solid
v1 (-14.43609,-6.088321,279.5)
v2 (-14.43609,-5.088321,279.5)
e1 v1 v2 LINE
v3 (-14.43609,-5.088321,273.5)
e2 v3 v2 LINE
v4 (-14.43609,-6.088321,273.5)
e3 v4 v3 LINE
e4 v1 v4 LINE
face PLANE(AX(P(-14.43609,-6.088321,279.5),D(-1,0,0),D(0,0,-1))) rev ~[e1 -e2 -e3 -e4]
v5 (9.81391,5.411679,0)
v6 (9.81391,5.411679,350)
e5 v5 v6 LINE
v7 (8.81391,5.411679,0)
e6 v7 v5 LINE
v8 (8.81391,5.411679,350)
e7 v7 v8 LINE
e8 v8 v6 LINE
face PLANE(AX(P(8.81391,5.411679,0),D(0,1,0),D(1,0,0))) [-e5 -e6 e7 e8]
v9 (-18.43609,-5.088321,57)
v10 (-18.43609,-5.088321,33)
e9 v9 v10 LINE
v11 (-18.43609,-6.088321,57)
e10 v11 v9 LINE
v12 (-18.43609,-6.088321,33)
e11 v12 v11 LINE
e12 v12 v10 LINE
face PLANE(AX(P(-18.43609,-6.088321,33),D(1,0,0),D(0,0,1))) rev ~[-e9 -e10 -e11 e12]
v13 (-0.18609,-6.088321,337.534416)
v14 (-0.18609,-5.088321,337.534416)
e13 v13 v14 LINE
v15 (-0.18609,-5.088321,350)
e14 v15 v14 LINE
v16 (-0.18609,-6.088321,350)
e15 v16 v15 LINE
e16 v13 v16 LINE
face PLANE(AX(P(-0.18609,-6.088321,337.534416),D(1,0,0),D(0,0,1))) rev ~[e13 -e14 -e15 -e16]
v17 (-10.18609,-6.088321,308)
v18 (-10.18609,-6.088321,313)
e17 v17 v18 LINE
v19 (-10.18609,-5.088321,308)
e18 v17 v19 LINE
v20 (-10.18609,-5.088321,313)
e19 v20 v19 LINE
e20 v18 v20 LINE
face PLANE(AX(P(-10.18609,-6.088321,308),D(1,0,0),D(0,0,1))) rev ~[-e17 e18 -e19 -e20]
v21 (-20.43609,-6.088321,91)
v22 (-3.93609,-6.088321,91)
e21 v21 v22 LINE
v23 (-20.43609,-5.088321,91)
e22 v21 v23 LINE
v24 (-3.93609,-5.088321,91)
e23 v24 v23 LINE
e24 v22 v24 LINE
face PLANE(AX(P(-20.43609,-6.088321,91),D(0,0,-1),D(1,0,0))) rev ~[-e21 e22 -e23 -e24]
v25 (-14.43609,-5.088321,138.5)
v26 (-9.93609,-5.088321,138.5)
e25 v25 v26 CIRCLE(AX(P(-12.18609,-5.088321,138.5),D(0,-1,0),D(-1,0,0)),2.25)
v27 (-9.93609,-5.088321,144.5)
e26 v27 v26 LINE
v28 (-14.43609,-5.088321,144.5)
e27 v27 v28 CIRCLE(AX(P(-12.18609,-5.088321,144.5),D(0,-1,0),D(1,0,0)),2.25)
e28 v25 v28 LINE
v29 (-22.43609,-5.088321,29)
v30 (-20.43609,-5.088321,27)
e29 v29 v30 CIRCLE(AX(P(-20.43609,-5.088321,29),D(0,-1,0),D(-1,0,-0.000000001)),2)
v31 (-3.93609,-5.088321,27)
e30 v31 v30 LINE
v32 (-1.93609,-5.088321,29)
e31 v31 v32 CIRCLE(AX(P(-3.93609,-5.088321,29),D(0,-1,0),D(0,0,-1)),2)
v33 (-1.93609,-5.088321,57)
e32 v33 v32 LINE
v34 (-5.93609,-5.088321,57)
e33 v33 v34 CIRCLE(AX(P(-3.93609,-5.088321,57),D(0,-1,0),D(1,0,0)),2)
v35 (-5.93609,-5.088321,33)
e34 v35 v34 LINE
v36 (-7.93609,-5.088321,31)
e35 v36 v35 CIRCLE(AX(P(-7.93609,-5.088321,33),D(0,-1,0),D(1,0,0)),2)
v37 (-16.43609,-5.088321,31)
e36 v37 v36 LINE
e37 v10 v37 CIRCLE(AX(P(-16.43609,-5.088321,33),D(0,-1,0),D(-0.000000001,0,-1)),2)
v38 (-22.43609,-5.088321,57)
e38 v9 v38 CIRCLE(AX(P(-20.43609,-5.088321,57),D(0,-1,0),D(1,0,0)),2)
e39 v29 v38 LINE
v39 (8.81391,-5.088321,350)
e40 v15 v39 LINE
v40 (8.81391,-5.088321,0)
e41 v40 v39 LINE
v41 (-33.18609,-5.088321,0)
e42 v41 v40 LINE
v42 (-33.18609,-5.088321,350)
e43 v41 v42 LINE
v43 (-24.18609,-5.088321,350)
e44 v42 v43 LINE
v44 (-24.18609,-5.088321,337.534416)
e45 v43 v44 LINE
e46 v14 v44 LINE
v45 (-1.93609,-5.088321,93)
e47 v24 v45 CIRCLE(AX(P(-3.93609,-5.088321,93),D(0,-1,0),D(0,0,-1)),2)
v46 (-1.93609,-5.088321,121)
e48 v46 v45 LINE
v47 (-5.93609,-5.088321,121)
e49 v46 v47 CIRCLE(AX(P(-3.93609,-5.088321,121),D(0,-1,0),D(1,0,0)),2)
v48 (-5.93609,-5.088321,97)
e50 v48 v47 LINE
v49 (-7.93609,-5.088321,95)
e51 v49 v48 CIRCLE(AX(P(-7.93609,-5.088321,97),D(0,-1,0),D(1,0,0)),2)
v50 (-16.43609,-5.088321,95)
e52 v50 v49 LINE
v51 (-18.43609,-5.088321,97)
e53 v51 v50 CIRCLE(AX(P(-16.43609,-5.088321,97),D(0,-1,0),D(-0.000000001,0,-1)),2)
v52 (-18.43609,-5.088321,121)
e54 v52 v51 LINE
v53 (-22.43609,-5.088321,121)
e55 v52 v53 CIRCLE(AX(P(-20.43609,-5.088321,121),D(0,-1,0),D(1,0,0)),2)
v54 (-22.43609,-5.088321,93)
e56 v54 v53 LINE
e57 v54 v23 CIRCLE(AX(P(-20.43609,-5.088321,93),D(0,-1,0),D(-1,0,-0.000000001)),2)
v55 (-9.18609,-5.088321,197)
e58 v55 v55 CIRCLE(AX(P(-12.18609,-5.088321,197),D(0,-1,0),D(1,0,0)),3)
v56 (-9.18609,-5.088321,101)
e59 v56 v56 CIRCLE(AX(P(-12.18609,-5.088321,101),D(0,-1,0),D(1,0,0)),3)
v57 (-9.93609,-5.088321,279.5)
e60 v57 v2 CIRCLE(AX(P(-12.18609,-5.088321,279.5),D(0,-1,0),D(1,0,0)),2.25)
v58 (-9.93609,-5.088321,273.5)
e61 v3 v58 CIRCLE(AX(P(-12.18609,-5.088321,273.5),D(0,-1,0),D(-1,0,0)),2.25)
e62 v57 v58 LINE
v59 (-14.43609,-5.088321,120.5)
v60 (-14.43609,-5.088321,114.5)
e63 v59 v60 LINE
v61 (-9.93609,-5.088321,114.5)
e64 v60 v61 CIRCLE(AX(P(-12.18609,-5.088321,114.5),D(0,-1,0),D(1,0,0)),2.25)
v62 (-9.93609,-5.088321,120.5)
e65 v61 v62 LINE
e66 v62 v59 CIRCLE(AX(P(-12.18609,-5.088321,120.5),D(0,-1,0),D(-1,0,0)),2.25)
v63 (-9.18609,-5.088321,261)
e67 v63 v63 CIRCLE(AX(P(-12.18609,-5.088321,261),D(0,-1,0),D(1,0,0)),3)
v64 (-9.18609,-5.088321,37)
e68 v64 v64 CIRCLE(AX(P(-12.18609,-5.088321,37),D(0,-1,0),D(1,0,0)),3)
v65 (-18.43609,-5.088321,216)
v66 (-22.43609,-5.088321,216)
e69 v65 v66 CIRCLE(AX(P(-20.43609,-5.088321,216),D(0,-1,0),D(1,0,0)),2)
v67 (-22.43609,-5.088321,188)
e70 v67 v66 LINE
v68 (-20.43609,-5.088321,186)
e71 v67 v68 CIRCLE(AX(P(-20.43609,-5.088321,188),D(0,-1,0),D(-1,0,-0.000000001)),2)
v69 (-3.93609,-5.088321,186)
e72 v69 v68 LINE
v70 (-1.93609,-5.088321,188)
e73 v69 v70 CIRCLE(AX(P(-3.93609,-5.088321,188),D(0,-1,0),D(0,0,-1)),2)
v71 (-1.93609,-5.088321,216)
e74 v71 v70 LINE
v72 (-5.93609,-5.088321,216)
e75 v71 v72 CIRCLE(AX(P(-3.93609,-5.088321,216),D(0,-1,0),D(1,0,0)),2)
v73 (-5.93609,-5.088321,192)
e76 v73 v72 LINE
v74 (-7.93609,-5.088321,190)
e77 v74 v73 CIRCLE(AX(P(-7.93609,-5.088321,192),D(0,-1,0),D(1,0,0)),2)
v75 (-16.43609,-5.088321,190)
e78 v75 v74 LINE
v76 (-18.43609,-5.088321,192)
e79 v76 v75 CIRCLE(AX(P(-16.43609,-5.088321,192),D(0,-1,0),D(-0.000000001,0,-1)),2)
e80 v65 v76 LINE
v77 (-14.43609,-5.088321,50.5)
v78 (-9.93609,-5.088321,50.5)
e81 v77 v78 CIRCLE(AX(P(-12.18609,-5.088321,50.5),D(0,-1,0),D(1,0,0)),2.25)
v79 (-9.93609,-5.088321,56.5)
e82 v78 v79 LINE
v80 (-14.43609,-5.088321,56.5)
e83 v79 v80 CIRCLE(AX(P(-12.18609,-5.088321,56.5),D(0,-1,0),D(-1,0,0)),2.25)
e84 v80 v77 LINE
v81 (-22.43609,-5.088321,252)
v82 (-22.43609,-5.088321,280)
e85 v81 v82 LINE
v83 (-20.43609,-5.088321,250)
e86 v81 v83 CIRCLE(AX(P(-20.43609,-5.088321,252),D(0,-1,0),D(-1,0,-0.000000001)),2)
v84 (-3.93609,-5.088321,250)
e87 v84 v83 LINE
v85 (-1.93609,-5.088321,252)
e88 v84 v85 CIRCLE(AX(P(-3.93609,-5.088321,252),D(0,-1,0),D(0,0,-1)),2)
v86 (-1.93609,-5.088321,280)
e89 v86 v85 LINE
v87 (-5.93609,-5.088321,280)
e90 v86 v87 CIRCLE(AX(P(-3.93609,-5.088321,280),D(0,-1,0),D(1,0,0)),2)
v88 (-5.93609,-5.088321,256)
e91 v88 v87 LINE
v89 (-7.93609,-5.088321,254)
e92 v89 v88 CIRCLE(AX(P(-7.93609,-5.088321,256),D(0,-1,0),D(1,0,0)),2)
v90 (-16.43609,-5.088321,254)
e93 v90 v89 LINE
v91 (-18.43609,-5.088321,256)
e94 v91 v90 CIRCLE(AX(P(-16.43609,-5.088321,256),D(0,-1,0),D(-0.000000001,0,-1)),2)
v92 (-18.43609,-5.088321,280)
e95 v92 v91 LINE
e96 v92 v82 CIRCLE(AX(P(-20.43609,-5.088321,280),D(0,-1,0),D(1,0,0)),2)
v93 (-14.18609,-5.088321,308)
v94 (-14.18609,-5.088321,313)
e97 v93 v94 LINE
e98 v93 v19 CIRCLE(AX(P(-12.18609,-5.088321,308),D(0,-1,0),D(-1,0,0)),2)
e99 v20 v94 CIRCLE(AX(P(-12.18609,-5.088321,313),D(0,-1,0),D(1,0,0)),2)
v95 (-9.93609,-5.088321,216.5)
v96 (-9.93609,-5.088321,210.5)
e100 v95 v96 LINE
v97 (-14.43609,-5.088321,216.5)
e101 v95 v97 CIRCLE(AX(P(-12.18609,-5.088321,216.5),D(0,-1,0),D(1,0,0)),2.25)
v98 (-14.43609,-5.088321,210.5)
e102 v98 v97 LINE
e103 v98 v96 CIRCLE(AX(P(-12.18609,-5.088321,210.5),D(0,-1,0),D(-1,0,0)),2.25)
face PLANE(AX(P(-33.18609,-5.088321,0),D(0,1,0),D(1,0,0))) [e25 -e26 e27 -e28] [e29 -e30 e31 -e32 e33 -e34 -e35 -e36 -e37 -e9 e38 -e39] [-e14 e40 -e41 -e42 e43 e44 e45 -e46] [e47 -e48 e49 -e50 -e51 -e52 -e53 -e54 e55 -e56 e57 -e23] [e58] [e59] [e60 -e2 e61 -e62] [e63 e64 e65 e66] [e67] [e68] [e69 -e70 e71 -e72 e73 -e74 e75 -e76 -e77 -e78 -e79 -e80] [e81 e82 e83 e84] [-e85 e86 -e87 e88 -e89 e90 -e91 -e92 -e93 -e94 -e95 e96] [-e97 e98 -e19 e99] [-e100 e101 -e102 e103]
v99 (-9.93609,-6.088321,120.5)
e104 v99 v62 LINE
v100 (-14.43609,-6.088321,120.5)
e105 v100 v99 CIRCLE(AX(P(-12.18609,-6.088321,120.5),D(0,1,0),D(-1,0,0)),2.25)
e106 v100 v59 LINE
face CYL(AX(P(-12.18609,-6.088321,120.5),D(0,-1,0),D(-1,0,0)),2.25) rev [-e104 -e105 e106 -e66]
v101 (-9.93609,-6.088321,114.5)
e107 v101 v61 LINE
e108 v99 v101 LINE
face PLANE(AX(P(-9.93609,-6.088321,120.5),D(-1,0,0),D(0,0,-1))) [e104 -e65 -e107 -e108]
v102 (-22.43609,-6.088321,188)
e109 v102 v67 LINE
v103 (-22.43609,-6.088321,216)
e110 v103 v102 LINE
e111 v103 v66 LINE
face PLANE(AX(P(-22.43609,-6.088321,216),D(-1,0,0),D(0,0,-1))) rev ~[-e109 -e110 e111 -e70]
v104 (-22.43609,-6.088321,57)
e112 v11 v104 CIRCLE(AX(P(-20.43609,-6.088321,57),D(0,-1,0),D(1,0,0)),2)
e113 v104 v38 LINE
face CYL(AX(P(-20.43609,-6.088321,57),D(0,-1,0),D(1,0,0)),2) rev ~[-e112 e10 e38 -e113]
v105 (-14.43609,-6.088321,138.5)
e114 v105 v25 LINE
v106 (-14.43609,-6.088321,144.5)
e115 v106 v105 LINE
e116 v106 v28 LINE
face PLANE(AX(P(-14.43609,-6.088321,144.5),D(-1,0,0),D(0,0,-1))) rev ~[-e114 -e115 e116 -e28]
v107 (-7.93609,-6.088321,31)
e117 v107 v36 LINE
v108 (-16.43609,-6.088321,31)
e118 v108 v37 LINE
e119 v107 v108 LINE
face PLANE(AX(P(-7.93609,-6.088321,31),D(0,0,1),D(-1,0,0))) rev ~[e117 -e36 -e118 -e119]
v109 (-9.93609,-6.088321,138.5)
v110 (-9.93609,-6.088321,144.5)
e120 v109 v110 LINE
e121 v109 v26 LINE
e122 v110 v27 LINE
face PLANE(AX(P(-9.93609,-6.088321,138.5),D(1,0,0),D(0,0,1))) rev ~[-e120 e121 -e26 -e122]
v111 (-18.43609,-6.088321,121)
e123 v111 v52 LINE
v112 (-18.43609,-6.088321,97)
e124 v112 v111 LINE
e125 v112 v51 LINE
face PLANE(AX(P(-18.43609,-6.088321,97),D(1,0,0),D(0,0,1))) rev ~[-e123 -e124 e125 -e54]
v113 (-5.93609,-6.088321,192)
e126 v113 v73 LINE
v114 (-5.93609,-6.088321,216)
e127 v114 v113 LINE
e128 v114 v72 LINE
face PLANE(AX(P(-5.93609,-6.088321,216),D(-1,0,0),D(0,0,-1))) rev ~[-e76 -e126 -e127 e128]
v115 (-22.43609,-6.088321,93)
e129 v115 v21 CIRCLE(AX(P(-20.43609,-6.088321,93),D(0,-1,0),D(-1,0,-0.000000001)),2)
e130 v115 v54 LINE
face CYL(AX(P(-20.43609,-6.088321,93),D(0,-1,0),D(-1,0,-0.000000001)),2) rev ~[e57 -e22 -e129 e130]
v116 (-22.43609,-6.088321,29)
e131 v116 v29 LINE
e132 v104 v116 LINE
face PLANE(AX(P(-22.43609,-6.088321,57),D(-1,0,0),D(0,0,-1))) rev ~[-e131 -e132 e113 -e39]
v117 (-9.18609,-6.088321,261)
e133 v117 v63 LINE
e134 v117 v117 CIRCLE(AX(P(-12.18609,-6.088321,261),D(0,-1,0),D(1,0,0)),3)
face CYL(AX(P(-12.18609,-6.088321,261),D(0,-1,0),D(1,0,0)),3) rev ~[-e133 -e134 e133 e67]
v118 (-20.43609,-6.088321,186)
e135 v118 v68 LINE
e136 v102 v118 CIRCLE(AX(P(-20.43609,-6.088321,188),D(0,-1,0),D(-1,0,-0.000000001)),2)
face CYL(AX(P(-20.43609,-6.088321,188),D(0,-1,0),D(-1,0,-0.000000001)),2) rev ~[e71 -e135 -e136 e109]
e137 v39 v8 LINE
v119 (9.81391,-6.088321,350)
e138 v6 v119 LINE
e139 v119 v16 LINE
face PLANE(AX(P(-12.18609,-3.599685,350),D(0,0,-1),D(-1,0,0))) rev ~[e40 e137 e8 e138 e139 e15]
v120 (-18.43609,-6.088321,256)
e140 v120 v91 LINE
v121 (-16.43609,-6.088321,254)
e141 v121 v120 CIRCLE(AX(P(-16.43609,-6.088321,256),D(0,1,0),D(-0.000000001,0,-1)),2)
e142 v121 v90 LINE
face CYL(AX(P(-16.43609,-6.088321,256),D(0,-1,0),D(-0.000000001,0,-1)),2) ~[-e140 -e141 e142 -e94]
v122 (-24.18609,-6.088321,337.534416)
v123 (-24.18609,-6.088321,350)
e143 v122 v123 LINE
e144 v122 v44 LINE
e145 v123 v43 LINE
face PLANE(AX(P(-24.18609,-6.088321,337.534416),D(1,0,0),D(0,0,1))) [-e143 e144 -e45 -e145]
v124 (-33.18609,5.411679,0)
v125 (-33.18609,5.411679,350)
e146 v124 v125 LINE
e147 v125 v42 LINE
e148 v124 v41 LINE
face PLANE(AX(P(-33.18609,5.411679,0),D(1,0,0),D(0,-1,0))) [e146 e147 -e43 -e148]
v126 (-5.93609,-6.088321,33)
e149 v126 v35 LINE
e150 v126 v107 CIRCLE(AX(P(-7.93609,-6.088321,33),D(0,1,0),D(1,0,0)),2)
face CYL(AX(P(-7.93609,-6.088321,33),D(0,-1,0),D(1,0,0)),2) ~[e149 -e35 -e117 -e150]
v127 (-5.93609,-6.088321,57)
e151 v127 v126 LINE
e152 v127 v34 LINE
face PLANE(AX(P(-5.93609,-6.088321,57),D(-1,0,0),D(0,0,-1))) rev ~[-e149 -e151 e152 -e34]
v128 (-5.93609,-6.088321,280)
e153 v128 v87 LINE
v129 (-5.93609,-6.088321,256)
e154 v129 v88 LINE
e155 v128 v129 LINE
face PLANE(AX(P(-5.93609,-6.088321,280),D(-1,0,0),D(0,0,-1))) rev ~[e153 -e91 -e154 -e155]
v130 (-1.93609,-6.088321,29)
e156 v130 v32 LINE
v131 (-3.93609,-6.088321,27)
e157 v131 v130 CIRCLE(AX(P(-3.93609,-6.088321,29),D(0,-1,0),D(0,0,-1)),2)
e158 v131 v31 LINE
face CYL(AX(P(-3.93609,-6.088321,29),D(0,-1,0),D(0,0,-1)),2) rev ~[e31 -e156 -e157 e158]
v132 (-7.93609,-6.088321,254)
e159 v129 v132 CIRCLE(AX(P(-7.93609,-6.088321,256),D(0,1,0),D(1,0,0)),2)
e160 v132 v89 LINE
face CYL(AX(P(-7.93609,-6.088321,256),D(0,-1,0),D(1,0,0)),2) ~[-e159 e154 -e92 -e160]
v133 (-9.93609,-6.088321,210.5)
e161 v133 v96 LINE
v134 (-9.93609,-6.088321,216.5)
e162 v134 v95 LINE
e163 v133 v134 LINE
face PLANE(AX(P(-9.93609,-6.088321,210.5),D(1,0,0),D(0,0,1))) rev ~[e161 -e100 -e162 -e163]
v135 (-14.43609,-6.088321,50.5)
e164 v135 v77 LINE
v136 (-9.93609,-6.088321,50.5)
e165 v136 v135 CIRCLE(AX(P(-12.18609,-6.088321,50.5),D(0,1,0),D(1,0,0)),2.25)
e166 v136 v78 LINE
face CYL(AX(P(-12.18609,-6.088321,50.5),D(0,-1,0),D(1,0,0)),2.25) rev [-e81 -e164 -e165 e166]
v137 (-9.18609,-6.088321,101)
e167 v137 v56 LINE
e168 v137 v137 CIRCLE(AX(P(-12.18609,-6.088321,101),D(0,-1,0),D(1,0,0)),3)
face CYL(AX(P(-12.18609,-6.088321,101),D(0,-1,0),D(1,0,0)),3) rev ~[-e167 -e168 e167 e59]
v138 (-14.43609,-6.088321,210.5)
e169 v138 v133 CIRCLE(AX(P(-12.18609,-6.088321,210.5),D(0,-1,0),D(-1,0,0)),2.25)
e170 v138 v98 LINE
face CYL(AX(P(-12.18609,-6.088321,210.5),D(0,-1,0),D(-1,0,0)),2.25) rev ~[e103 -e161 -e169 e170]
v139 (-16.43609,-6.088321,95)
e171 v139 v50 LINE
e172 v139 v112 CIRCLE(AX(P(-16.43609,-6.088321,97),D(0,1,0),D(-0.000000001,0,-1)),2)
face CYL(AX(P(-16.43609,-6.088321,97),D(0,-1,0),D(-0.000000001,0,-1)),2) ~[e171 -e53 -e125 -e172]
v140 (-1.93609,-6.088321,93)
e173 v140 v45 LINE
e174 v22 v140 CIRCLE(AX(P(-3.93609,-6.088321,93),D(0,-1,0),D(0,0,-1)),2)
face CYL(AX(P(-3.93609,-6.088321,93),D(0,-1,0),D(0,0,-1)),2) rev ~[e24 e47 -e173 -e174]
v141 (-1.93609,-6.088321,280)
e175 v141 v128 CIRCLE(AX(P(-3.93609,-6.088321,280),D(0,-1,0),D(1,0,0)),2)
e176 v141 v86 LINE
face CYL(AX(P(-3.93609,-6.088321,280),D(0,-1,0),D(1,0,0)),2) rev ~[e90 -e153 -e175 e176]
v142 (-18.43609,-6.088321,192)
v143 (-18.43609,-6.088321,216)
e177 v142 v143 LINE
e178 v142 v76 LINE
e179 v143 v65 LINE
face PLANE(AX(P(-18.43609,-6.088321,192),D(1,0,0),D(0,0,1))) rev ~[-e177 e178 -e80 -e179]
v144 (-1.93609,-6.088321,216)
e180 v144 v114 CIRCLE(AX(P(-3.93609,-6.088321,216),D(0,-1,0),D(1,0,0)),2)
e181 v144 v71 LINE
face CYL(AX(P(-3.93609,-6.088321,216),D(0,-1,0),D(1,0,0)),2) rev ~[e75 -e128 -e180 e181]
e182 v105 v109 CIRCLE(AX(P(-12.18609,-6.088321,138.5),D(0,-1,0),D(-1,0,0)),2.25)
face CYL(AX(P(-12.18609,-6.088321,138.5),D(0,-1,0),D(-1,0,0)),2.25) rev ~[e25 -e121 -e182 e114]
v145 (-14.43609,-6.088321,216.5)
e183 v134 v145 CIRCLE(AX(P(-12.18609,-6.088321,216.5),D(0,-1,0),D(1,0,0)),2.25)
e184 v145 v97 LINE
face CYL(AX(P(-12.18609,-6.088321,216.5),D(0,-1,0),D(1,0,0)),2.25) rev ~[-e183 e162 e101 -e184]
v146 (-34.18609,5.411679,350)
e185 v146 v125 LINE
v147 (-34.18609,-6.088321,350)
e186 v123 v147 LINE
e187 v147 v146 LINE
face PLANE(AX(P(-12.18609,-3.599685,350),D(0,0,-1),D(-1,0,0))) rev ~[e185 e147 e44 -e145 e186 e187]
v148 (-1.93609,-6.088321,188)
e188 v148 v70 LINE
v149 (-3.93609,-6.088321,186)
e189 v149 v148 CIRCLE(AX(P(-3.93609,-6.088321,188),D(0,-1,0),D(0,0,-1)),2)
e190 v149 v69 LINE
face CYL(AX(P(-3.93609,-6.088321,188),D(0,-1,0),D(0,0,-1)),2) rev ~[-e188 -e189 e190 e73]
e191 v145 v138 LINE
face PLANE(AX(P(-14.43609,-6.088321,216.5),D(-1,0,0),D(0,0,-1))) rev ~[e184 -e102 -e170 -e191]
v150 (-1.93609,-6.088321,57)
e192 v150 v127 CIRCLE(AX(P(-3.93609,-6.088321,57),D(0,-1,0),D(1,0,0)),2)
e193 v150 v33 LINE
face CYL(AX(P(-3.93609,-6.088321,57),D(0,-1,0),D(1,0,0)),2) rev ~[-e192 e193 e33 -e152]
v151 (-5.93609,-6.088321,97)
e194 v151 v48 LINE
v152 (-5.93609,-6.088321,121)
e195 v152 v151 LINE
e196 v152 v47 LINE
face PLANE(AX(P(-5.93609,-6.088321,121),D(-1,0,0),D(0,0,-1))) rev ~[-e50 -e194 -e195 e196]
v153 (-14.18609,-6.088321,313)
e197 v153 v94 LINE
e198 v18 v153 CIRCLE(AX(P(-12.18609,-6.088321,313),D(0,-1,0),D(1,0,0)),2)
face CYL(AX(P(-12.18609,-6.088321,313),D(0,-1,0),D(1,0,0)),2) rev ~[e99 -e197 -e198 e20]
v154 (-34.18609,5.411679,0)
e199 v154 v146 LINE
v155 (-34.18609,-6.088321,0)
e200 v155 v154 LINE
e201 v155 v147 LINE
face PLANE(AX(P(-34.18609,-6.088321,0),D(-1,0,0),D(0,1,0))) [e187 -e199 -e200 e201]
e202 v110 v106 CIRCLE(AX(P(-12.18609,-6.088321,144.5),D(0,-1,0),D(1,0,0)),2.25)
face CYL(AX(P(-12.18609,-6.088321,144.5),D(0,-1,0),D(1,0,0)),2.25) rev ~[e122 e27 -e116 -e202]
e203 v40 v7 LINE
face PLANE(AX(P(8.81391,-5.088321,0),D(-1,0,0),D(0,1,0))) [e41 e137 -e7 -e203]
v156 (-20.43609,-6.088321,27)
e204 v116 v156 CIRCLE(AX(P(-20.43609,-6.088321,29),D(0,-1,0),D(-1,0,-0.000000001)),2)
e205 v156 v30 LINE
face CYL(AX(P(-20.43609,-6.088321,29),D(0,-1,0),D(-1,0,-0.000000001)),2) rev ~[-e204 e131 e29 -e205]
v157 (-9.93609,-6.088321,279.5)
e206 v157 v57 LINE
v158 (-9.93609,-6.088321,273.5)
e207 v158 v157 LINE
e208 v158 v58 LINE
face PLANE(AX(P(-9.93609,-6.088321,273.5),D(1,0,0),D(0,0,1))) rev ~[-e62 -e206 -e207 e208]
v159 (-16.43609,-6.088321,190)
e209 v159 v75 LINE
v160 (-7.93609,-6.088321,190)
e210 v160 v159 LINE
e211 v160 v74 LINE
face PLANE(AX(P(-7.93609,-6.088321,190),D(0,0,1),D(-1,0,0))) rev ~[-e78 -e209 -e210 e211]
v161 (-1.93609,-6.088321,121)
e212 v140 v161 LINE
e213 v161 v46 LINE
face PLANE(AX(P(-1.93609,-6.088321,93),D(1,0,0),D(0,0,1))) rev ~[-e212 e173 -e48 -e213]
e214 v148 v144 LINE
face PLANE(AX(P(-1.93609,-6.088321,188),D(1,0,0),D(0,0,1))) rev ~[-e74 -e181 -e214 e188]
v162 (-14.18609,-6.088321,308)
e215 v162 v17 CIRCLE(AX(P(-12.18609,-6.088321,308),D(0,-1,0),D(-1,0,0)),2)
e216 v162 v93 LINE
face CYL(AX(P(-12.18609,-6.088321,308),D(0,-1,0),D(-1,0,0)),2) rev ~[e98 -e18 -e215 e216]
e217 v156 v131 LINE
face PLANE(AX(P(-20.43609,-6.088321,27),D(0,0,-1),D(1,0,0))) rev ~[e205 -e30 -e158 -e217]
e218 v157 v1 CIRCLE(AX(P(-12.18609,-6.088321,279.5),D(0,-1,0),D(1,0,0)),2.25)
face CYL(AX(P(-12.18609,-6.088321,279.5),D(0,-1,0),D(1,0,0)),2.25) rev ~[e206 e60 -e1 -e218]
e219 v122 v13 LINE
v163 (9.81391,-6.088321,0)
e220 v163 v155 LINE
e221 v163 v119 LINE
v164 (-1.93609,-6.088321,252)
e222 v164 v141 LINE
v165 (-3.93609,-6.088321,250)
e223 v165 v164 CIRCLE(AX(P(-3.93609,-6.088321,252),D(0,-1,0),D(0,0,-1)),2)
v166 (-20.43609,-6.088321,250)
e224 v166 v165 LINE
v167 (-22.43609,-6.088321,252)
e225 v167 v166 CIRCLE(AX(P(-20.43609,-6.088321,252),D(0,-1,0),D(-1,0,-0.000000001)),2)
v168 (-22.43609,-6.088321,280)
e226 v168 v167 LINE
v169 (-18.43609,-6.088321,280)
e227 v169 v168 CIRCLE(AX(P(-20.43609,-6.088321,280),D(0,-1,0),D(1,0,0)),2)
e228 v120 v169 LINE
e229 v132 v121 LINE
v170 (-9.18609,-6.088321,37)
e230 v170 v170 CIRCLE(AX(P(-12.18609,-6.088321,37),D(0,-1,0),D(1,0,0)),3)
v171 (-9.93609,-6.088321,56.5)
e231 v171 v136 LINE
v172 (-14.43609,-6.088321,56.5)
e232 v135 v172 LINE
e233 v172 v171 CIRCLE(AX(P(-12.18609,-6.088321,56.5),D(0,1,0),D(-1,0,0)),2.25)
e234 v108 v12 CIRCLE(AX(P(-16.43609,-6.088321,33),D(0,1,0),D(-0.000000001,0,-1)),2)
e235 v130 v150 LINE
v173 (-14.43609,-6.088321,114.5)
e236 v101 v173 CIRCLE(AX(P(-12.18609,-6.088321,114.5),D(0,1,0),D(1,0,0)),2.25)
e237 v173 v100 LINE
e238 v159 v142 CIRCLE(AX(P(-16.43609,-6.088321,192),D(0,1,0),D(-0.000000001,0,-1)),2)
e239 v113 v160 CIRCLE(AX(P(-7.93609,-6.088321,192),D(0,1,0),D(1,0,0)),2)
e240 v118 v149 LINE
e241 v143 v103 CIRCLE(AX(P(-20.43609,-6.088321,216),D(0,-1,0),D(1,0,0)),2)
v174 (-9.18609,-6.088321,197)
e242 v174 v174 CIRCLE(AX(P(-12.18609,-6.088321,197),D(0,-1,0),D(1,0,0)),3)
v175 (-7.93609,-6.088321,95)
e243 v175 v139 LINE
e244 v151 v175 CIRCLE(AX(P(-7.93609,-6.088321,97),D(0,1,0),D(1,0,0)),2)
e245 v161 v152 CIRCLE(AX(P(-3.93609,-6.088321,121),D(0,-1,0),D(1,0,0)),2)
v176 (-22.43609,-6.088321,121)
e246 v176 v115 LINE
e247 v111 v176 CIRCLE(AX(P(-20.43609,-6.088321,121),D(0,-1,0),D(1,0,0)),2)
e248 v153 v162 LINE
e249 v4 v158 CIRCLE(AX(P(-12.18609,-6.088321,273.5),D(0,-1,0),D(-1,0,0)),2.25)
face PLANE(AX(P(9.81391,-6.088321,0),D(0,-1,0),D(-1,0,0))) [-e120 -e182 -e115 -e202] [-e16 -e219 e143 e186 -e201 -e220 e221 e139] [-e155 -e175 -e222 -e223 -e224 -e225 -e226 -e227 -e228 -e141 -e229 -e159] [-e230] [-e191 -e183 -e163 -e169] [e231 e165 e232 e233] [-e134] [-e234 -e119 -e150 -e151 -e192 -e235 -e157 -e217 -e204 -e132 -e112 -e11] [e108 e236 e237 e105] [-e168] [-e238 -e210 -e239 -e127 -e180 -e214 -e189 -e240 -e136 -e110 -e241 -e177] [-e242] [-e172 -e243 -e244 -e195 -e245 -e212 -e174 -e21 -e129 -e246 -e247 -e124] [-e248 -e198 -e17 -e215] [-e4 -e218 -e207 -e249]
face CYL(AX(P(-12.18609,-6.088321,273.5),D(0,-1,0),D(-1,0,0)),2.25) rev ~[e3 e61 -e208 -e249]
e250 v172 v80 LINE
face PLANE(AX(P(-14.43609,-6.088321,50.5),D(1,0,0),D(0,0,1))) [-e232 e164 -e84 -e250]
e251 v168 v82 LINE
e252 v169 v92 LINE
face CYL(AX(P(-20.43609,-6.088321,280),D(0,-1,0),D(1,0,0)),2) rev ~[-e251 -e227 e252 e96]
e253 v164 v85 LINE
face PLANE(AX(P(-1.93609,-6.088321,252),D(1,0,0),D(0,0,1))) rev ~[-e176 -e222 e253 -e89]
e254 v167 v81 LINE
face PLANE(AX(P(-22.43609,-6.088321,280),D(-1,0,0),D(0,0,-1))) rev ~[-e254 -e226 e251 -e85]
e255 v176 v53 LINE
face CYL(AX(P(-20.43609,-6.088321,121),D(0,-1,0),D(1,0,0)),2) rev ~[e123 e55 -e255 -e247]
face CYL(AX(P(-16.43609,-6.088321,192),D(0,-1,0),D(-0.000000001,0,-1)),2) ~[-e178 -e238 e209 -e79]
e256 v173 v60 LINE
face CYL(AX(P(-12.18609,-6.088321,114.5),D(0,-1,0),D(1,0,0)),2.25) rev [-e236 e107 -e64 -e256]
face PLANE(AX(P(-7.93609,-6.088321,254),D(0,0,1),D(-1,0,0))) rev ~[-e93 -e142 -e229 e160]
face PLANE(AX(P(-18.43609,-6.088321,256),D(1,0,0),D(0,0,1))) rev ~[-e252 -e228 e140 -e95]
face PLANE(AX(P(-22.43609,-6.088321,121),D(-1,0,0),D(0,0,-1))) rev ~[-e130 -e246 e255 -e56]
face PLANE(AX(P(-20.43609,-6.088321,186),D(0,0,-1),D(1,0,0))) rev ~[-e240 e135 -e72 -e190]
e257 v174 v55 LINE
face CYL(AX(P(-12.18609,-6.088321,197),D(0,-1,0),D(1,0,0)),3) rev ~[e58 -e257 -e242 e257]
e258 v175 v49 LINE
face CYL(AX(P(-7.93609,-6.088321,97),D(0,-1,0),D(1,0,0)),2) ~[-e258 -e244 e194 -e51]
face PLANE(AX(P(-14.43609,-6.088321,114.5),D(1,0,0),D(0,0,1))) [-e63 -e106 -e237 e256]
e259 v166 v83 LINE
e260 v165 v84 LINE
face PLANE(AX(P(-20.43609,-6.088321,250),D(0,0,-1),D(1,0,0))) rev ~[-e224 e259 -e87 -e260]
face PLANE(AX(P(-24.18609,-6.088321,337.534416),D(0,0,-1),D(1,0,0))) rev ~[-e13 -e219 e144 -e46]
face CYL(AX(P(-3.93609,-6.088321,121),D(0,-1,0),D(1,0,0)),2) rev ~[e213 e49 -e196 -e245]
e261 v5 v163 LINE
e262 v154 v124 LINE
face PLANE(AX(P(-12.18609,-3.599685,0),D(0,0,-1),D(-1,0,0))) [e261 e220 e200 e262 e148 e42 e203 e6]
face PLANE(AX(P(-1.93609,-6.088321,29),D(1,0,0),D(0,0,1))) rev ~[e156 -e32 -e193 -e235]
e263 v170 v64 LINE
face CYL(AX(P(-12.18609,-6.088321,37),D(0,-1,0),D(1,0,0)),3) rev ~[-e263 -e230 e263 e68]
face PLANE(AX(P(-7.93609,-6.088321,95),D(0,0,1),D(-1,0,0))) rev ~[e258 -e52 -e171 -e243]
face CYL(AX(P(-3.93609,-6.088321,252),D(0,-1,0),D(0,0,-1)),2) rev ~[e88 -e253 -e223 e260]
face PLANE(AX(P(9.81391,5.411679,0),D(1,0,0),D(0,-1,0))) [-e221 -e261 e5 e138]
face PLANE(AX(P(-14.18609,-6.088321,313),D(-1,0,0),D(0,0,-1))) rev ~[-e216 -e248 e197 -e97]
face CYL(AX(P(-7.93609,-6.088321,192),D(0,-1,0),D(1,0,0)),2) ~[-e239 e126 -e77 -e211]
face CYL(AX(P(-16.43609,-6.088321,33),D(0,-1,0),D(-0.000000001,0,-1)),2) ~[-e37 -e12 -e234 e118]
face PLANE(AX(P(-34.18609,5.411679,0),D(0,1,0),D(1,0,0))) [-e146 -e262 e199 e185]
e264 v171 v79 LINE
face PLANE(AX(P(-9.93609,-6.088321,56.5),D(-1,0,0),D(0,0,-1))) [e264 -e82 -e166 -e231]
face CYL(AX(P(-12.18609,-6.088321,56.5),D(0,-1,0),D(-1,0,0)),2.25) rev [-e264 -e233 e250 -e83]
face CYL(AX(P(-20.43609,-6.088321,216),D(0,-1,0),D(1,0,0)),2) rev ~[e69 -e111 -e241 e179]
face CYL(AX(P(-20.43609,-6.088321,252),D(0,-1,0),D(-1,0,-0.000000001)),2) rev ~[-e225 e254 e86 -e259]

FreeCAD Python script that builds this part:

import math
import FreeCAD as App
import Part
import Sketcher

V = App.Vector


def add_polygon(sketch, points):
    """Adds a closed chain of lines whose ends are joined by coincident constraints."""
    first, n = sketch.GeometryCount, len(points)
    for a, b in zip(points, points[1:] + points[:1]):
        sketch.addGeometry(Part.LineSegment(App.Vector(*a, 0), App.Vector(*b, 0)), False)
    for i in range(n):
        sketch.addConstraint(Sketcher.Constraint("Coincident", first + i, 2, first + (i + 1) % n, 1))

doc = App.newDocument("Part")
body = doc.addObject("PartDesign::Body", "Body")

# Sketch on XY plane
sketch1 = doc.addObject("Sketcher::SketchObject", "Sketch")
body.addObject(sketch1)
sketch1.AttachmentSupport = (doc.XY_Plane, [""])
sketch1.MapMode = "FlatFace"
add_polygon(sketch1, [(-33.2, 5.4), (-34.2, 5.4), (-34.2, -6.1), (9.8, -6.1), (9.8, 5.4), (8.8, 5.4), (8.8, -5.1), (-33.2, -5.1)])  # lines 0-7
sketch1.addConstraint(Sketcher.Constraint("Horizontal", 0))
sketch1.addConstraint(Sketcher.Constraint("Vertical", 1))
sketch1.addConstraint(Sketcher.Constraint("Horizontal", 2))
sketch1.addConstraint(Sketcher.Constraint("Vertical", 3))
sketch1.addConstraint(Sketcher.Constraint("Horizontal", 4))
sketch1.addConstraint(Sketcher.Constraint("Vertical", 5))
sketch1.addConstraint(Sketcher.Constraint("Horizontal", 6))
sketch1.addConstraint(Sketcher.Constraint("Vertical", 7))
sketch1.addConstraint(Sketcher.Constraint("Horizontal", 0, 2, 3, 2))
sketch1.addConstraint(Sketcher.Constraint("Equal", 0, 4))
sketch1.addConstraint(Sketcher.Constraint("DistanceX", 0, 2, 0, 1, 1.0))
sketch1.addConstraint(Sketcher.Constraint("DistanceX", 2, 1, 2, 2, 44.0))
sketch1.addConstraint(Sketcher.Constraint("DistanceY", 1, 2, 1, 1, 11.5))
sketch1.addConstraint(Sketcher.Constraint("DistanceY", 5, 2, 5, 1, 10.5))
sketch1.addConstraint(Sketcher.Constraint("DistanceX", 0, 2, -1, 1, 34.18609))
sketch1.addConstraint(Sketcher.Constraint("DistanceY", -1, 1, 0, 2, 5.411679))
pad1 = doc.addObject("PartDesign::Pad", "Pad")
body.addObject(pad1)
pad1.Profile = sketch1
pad1.Length = 350

# Sketch on XZ plane
sketch2 = doc.addObject("Sketcher::SketchObject", "Sketch001")
body.addObject(sketch2)
sketch2.AttachmentSupport = (doc.XZ_Plane, [""])
sketch2.MapMode = "FlatFace"
sketch2.AttachmentOffset = App.Placement(V(0, 0, 6.088321), App.Rotation())
sketch2.addGeometry(Part.Circle(V(-12.2, 261, 0), V(0, 0, 1), 3), False)  # 0
sketch2.addGeometry(Part.Circle(V(-12.2, 197, 0), V(0, 0, 1), 3), False)  # 1
sketch2.addGeometry(Part.Circle(V(-12.2, 101, 0), V(0, 0, 1), 3), False)  # 2
sketch2.addGeometry(Part.Circle(V(-12.2, 37, 0), V(0, 0, 1), 3), False)  # 3
sketch2.addGeometry(Part.LineSegment(V(-22.4, 280, 0), V(-22.4, 252, 0)), False)  # 4
sketch2.addGeometry(Part.ArcOfCircle(Part.Circle(V(-20.4, 252, 0), V(0, 0, 1), 2), math.radians(-180), math.radians(-90)), False)  # 5
sketch2.addGeometry(Part.LineSegment(V(-20.4, 250, 0), V(-3.9, 250, 0)), False)  # 6
sketch2.addGeometry(Part.ArcOfCircle(Part.Circle(V(-3.9, 252, 0), V(0, 0, 1), 2), math.radians(-90), math.radians(0)), False)  # 7
sketch2.addGeometry(Part.LineSegment(V(-1.9, 252, 0), V(-1.9, 280, 0)), False)  # 8
sketch2.addGeometry(Part.ArcOfCircle(Part.Circle(V(-3.9, 280, 0), V(0, 0, 1), 2), math.radians(0), math.radians(180)), False)  # 9
sketch2.addGeometry(Part.LineSegment(V(-5.9, 280, 0), V(-5.9, 256, 0)), False)  # 10
sketch2.addGeometry(Part.ArcOfCircle(Part.Circle(V(-7.9, 256, 0), V(0, 0, 1), 2), math.radians(-90), math.radians(0)), False)  # 11
sketch2.addGeometry(Part.LineSegment(V(-7.9, 254, 0), V(-16.4, 254, 0)), False)  # 12
sketch2.addGeometry(Part.ArcOfCircle(Part.Circle(V(-16.4, 256, 0), V(0, 0, 1), 2), math.radians(-180), math.radians(-90)), False)  # 13
sketch2.addGeometry(Part.LineSegment(V(-18.4, 256, 0), V(-18.4, 280, 0)), False)  # 14
sketch2.addGeometry(Part.ArcOfCircle(Part.Circle(V(-20.4, 280, 0), V(0, 0, 1), 2), math.radians(0), math.radians(180)), False)  # 15
sketch2.addGeometry(Part.LineSegment(V(-14.4, 279.5, 0), V(-14.4, 273.5, 0)), False)  # 16
sketch2.addGeometry(Part.ArcOfCircle(Part.Circle(V(-12.2, 273.5, 0), V(0, 0, 1), 2.2), math.radians(180), math.radians(360)), False)  # 17
sketch2.addGeometry(Part.LineSegment(V(-9.9, 273.5, 0), V(-9.9, 279.5, 0)), False)  # 18
sketch2.addGeometry(Part.ArcOfCircle(Part.Circle(V(-12.2, 279.5, 0), V(0, 0, 1), 2.2), math.radians(0), math.radians(180)), False)  # 19
sketch2.addGeometry(Part.LineSegment(V(-5.9, 216, 0), V(-5.9, 192, 0)), False)  # 20
sketch2.addGeometry(Part.ArcOfCircle(Part.Circle(V(-7.9, 192, 0), V(0, 0, 1), 2), math.radians(-90), math.radians(0)), False)  # 21
sketch2.addGeometry(Part.LineSegment(V(-7.9, 190, 0), V(-16.4, 190, 0)), False)  # 22
sketch2.addGeometry(Part.ArcOfCircle(Part.Circle(V(-16.4, 192, 0), V(0, 0, 1), 2), math.radians(-180), math.radians(-90)), False)  # 23
sketch2.addGeometry(Part.LineSegment(V(-18.4, 192, 0), V(-18.4, 216, 0)), False)  # 24
sketch2.addGeometry(Part.ArcOfCircle(Part.Circle(V(-20.4, 216, 0), V(0, 0, 1), 2), math.radians(0), math.radians(180)), False)  # 25
sketch2.addGeometry(Part.LineSegment(V(-22.4, 216, 0), V(-22.4, 188, 0)), False)  # 26
sketch2.addGeometry(Part.ArcOfCircle(Part.Circle(V(-20.4, 188, 0), V(0, 0, 1), 2), math.radians(-180), math.radians(-90)), False)  # 27
sketch2.addGeometry(Part.LineSegment(V(-20.4, 186, 0), V(-3.9, 186, 0)), False)  # 28
sketch2.addGeometry(Part.ArcOfCircle(Part.Circle(V(-3.9, 188, 0), V(0, 0, 1), 2), math.radians(-90), math.radians(0)), False)  # 29
sketch2.addGeometry(Part.LineSegment(V(-1.9, 188, 0), V(-1.9, 216, 0)), False)  # 30
sketch2.addGeometry(Part.ArcOfCircle(Part.Circle(V(-3.9, 216, 0), V(0, 0, 1), 2), math.radians(0), math.radians(180)), False)  # 31
sketch2.addGeometry(Part.LineSegment(V(-14.4, 216.5, 0), V(-14.4, 210.5, 0)), False)  # 32
sketch2.addGeometry(Part.ArcOfCircle(Part.Circle(V(-12.2, 210.5, 0), V(0, 0, 1), 2.2), math.radians(180), math.radians(360)), False)  # 33
sketch2.addGeometry(Part.LineSegment(V(-9.9, 210.5, 0), V(-9.9, 216.5, 0)), False)  # 34
sketch2.addGeometry(Part.ArcOfCircle(Part.Circle(V(-12.2, 216.5, 0), V(0, 0, 1), 2.2), math.radians(0), math.radians(180)), False)  # 35
sketch2.addGeometry(Part.LineSegment(V(-20.4, 91, 0), V(-3.9, 91, 0)), False)  # 36
sketch2.addGeometry(Part.ArcOfCircle(Part.Circle(V(-3.9, 93, 0), V(0, 0, 1), 2), math.radians(-90), math.radians(0)), False)  # 37
sketch2.addGeometry(Part.LineSegment(V(-1.9, 93, 0), V(-1.9, 121, 0)), False)  # 38
sketch2.addGeometry(Part.ArcOfCircle(Part.Circle(V(-3.9, 121, 0), V(0, 0, 1), 2), math.radians(0), math.radians(180)), False)  # 39
sketch2.addGeometry(Part.LineSegment(V(-5.9, 121, 0), V(-5.9, 97, 0)), False)  # 40
sketch2.addGeometry(Part.ArcOfCircle(Part.Circle(V(-7.9, 97, 0), V(0, 0, 1), 2), math.radians(-90), math.radians(0)), False)  # 41
sketch2.addGeometry(Part.LineSegment(V(-7.9, 95, 0), V(-16.4, 95, 0)), False)  # 42
sketch2.addGeometry(Part.ArcOfCircle(Part.Circle(V(-16.4, 97, 0), V(0, 0, 1), 2), math.radians(-180), math.radians(-90)), False)  # 43
sketch2.addGeometry(Part.LineSegment(V(-18.4, 97, 0), V(-18.4, 121, 0)), False)  # 44
sketch2.addGeometry(Part.ArcOfCircle(Part.Circle(V(-20.4, 121, 0), V(0, 0, 1), 2), math.radians(0), math.radians(180)), False)  # 45
sketch2.addGeometry(Part.LineSegment(V(-22.4, 121, 0), V(-22.4, 93, 0)), False)  # 46
sketch2.addGeometry(Part.ArcOfCircle(Part.Circle(V(-20.4, 93, 0), V(0, 0, 1), 2), math.radians(-180), math.radians(-90)), False)  # 47
sketch2.addGeometry(Part.LineSegment(V(-9.9, 114.5, 0), V(-9.9, 120.5, 0)), False)  # 48
sketch2.addGeometry(Part.ArcOfCircle(Part.Circle(V(-12.2, 120.5, 0), V(0, 0, 1), 2.2), math.radians(0), math.radians(180)), False)  # 49
sketch2.addGeometry(Part.LineSegment(V(-14.4, 120.5, 0), V(-14.4, 114.5, 0)), False)  # 50
sketch2.addGeometry(Part.ArcOfCircle(Part.Circle(V(-12.2, 114.5, 0), V(0, 0, 1), 2.2), math.radians(180), math.radians(360)), False)  # 51
sketch2.addGeometry(Part.LineSegment(V(-20.4, 27, 0), V(-3.9, 27, 0)), False)  # 52
sketch2.addGeometry(Part.ArcOfCircle(Part.Circle(V(-3.9, 29, 0), V(0, 0, 1), 2), math.radians(-90), math.radians(0)), False)  # 53
sketch2.addGeometry(Part.LineSegment(V(-1.9, 29, 0), V(-1.9, 57, 0)), False)  # 54
sketch2.addGeometry(Part.ArcOfCircle(Part.Circle(V(-3.9, 57, 0), V(0, 0, 1), 2), math.radians(0), math.radians(180)), False)  # 55
sketch2.addGeometry(Part.LineSegment(V(-5.9, 57, 0), V(-5.9, 33, 0)), False)  # 56
sketch2.addGeometry(Part.ArcOfCircle(Part.Circle(V(-7.9, 33, 0), V(0, 0, 1), 2), math.radians(-90), math.radians(0)), False)  # 57
sketch2.addGeometry(Part.LineSegment(V(-7.9, 31, 0), V(-16.4, 31, 0)), False)  # 58
sketch2.addGeometry(Part.ArcOfCircle(Part.Circle(V(-16.4, 33, 0), V(0, 0, 1), 2), math.radians(-180), math.radians(-90)), False)  # 59
sketch2.addGeometry(Part.LineSegment(V(-18.4, 33, 0), V(-18.4, 57, 0)), False)  # 60
sketch2.addGeometry(Part.ArcOfCircle(Part.Circle(V(-20.4, 57, 0), V(0, 0, 1), 2), math.radians(0), math.radians(180)), False)  # 61
sketch2.addGeometry(Part.LineSegment(V(-22.4, 57, 0), V(-22.4, 29, 0)), False)  # 62
sketch2.addGeometry(Part.ArcOfCircle(Part.Circle(V(-20.4, 29, 0), V(0, 0, 1), 2), math.radians(-180), math.radians(-90)), False)  # 63
sketch2.addGeometry(Part.LineSegment(V(-9.9, 50.5, 0), V(-9.9, 56.5, 0)), False)  # 64
sketch2.addGeometry(Part.ArcOfCircle(Part.Circle(V(-12.2, 56.5, 0), V(0, 0, 1), 2.2), math.radians(0), math.radians(180)), False)  # 65
sketch2.addGeometry(Part.LineSegment(V(-14.4, 56.5, 0), V(-14.4, 50.5, 0)), False)  # 66
sketch2.addGeometry(Part.ArcOfCircle(Part.Circle(V(-12.2, 50.5, 0), V(0, 0, 1), 2.2), math.radians(180), math.radians(360)), False)  # 67
sketch2.addGeometry(Part.LineSegment(V(-14.2, 313, 0), V(-14.2, 308, 0)), False)  # 68
sketch2.addGeometry(Part.ArcOfCircle(Part.Circle(V(-12.2, 308, 0), V(0, 0, 1), 2), math.radians(180), math.radians(360)), False)  # 69
sketch2.addGeometry(Part.LineSegment(V(-10.2, 308, 0), V(-10.2, 313, 0)), False)  # 70
sketch2.addGeometry(Part.ArcOfCircle(Part.Circle(V(-12.2, 313, 0), V(0, 0, 1), 2), math.radians(0), math.radians(180)), False)  # 71
sketch2.addGeometry(Part.LineSegment(V(-14.4, 144.5, 0), V(-14.4, 138.5, 0)), False)  # 72
sketch2.addGeometry(Part.ArcOfCircle(Part.Circle(V(-12.2, 138.5, 0), V(0, 0, 1), 2.2), math.radians(180), math.radians(360)), False)  # 73
sketch2.addGeometry(Part.LineSegment(V(-9.9, 138.5, 0), V(-9.9, 144.5, 0)), False)  # 74
sketch2.addGeometry(Part.ArcOfCircle(Part.Circle(V(-12.2, 144.5, 0), V(0, 0, 1), 2.2), math.radians(0), math.radians(180)), False)  # 75
add_polygon(sketch2, [(-24.2, 350), (-24.2, 337.5), (-0.2, 337.5), (-0.2, 350)])  # lines 76-79
sketch2.addConstraint(Sketcher.Constraint("Tangent", 4, 2, 5, 1))
sketch2.addConstraint(Sketcher.Constraint("Tangent", 5, 2, 6, 1))
sketch2.addConstraint(Sketcher.Constraint("Tangent", 6, 2, 7, 1))
sketch2.addConstraint(Sketcher.Constraint("Tangent", 7, 2, 8, 1))
sketch2.addConstraint(Sketcher.Constraint("Tangent", 8, 2, 9, 1))
sketch2.addConstraint(Sketcher.Constraint("Tangent", 9, 2, 10, 1))
sketch2.addConstraint(Sketcher.Constraint("Tangent", 10, 2, 11, 2))
sketch2.addConstraint(Sketcher.Constraint("Tangent", 11, 1, 12, 1))
sketch2.addConstraint(Sketcher.Constraint("Tangent", 12, 2, 13, 2))
sketch2.addConstraint(Sketcher.Constraint("Tangent", 13, 1, 14, 1))
sketch2.addConstraint(Sketcher.Constraint("Tangent", 14, 2, 15, 1))
sketch2.addConstraint(Sketcher.Constraint("Tangent", 15, 2, 4, 1))
sketch2.addConstraint(Sketcher.Constraint("Tangent", 16, 2, 17, 1))
sketch2.addConstraint(Sketcher.Constraint("Tangent", 17, 2, 18, 1))
sketch2.addConstraint(Sketcher.Constraint("Tangent", 18, 2, 19, 1))
sketch2.addConstraint(Sketcher.Constraint("Tangent", 19, 2, 16, 1))
sketch2.addConstraint(Sketcher.Constraint("Tangent", 20, 2, 21, 2))
sketch2.addConstraint(Sketcher.Constraint("Tangent", 21, 1, 22, 1))
sketch2.addConstraint(Sketcher.Constraint("Tangent", 22, 2, 23, 2))
sketch2.addConstraint(Sketcher.Constraint("Tangent", 23, 1, 24, 1))
sketch2.addConstraint(Sketcher.Constraint("Tangent", 24, 2, 25, 1))
sketch2.addConstraint(Sketcher.Constraint("Tangent", 25, 2, 26, 1))
sketch2.addConstraint(Sketcher.Constraint("Tangent", 26, 2, 27, 1))
sketch2.addConstraint(Sketcher.Constraint("Tangent", 27, 2, 28, 1))
sketch2.addConstraint(Sketcher.Constraint("Tangent", 28, 2, 29, 1))
sketch2.addConstraint(Sketcher.Constraint("Tangent", 29, 2, 30, 1))
sketch2.addConstraint(Sketcher.Constraint("Tangent", 30, 2, 31, 1))
sketch2.addConstraint(Sketcher.Constraint("Tangent", 31, 2, 20, 1))
sketch2.addConstraint(Sketcher.Constraint("Tangent", 32, 2, 33, 1))
sketch2.addConstraint(Sketcher.Constraint("Tangent", 33, 2, 34, 1))
sketch2.addConstraint(Sketcher.Constraint("Tangent", 34, 2, 35, 1))
sketch2.addConstraint(Sketcher.Constraint("Tangent", 35, 2, 32, 1))
sketch2.addConstraint(Sketcher.Constraint("Tangent", 36, 2, 37, 1))
sketch2.addConstraint(Sketcher.Constraint("Tangent", 37, 2, 38, 1))
sketch2.addConstraint(Sketcher.Constraint("Tangent", 38, 2, 39, 1))
sketch2.addConstraint(Sketcher.Constraint("Tangent", 39, 2, 40, 1))
sketch2.addConstraint(Sketcher.Constraint("Tangent", 40, 2, 41, 2))
sketch2.addConstraint(Sketcher.Constraint("Tangent", 41, 1, 42, 1))
sketch2.addConstraint(Sketcher.Constraint("Tangent", 42, 2, 43, 2))
sketch2.addConstraint(Sketcher.Constraint("Tangent", 43, 1, 44, 1))
sketch2.addConstraint(Sketcher.Constraint("Tangent", 44, 2, 45, 1))
sketch2.addConstraint(Sketcher.Constraint("Tangent", 45, 2, 46, 1))
sketch2.addConstraint(Sketcher.Constraint("Tangent", 46, 2, 47, 1))
sketch2.addConstraint(Sketcher.Constraint("Tangent", 47, 2, 36, 1))
sketch2.addConstraint(Sketcher.Constraint("Tangent", 48, 2, 49, 1))
sketch2.addConstraint(Sketcher.Constraint("Tangent", 49, 2, 50, 1))
sketch2.addConstraint(Sketcher.Constraint("Tangent", 50, 2, 51, 1))
sketch2.addConstraint(Sketcher.Constraint("Tangent", 51, 2, 48, 1))
sketch2.addConstraint(Sketcher.Constraint("Tangent", 52, 2, 53, 1))
sketch2.addConstraint(Sketcher.Constraint("Tangent", 53, 2, 54, 1))
sketch2.addConstraint(Sketcher.Constraint("Tangent", 54, 2, 55, 1))
sketch2.addConstraint(Sketcher.Constraint("Tangent", 55, 2, 56, 1))
sketch2.addConstraint(Sketcher.Constraint("Tangent", 56, 2, 57, 2))
sketch2.addConstraint(Sketcher.Constraint("Tangent", 57, 1, 58, 1))
sketch2.addConstraint(Sketcher.Constraint("Tangent", 58, 2, 59, 2))
sketch2.addConstraint(Sketcher.Constraint("Tangent", 59, 1, 60, 1))
sketch2.addConstraint(Sketcher.Constraint("Tangent", 60, 2, 61, 1))
sketch2.addConstraint(Sketcher.Constraint("Tangent", 61, 2, 62, 1))
sketch2.addConstraint(Sketcher.Constraint("Tangent", 62, 2, 63, 1))
sketch2.addConstraint(Sketcher.Constraint("Tangent", 63, 2, 52, 1))
sketch2.addConstraint(Sketcher.Constraint("Tangent", 64, 2, 65, 1))
sketch2.addConstraint(Sketcher.Constraint("Tangent", 65, 2, 66, 1))
sketch2.addConstraint(Sketcher.Constraint("Tangent", 66, 2, 67, 1))
sketch2.addConstraint(Sketcher.Constraint("Tangent", 67, 2, 64, 1))
sketch2.addConstraint(Sketcher.Constraint("Tangent", 68, 2, 69, 1))
sketch2.addConstraint(Sketcher.Constraint("Tangent", 69, 2, 70, 1))
sketch2.addConstraint(Sketcher.Constraint("Tangent", 70, 2, 71, 1))
sketch2.addConstraint(Sketcher.Constraint("Tangent", 71, 2, 68, 1))
sketch2.addConstraint(Sketcher.Constraint("Tangent", 72, 2, 73, 1))
sketch2.addConstraint(Sketcher.Constraint("Tangent", 73, 2, 74, 1))
sketch2.addConstraint(Sketcher.Constraint("Tangent", 74, 2, 75, 1))
sketch2.addConstraint(Sketcher.Constraint("Tangent", 75, 2, 72, 1))
sketch2.addConstraint(Sketcher.Constraint("Vertical", 4))
sketch2.addConstraint(Sketcher.Constraint("Horizontal", 6))
sketch2.addConstraint(Sketcher.Constraint("Vertical", 8))
sketch2.addConstraint(Sketcher.Constraint("Vertical", 10))
sketch2.addConstraint(Sketcher.Constraint("Horizontal", 12))
sketch2.addConstraint(Sketcher.Constraint("Vertical", 14))
sketch2.addConstraint(Sketcher.Constraint("Vertical", 16))
sketch2.addConstraint(Sketcher.Constraint("Vertical", 18))
sketch2.addConstraint(Sketcher.Constraint("Vertical", 20))
sketch2.addConstraint(Sketcher.Constraint("Horizontal", 22))
sketch2.addConstraint(Sketcher.Constraint("Vertical", 24))
sketch2.addConstraint(Sketcher.Constraint("Vertical", 26))
sketch2.addConstraint(Sketcher.Constraint("Horizontal", 28))
sketch2.addConstraint(Sketcher.Constraint("Vertical", 30))
sketch2.addConstraint(Sketcher.Constraint("Vertical", 32))
sketch2.addConstraint(Sketcher.Constraint("Vertical", 34))
sketch2.addConstraint(Sketcher.Constraint("Horizontal", 36))
sketch2.addConstraint(Sketcher.Constraint("Vertical", 38))
sketch2.addConstraint(Sketcher.Constraint("Vertical", 40))
sketch2.addConstraint(Sketcher.Constraint("Horizontal", 42))
sketch2.addConstraint(Sketcher.Constraint("Vertical", 44))
sketch2.addConstraint(Sketcher.Constraint("Vertical", 46))
sketch2.addConstraint(Sketcher.Constraint("Vertical", 48))
sketch2.addConstraint(Sketcher.Constraint("Vertical", 50))
sketch2.addConstraint(Sketcher.Constraint("Horizontal", 52))
sketch2.addConstraint(Sketcher.Constraint("Vertical", 54))
sketch2.addConstraint(Sketcher.Constraint("Vertical", 56))
sketch2.addConstraint(Sketcher.Constraint("Horizontal", 58))
sketch2.addConstraint(Sketcher.Constraint("Vertical", 60))
sketch2.addConstraint(Sketcher.Constraint("Vertical", 62))
sketch2.addConstraint(Sketcher.Constraint("Vertical", 64))
sketch2.addConstraint(Sketcher.Constraint("Vertical", 66))
sketch2.addConstraint(Sketcher.Constraint("Vertical", 68))
sketch2.addConstraint(Sketcher.Constraint("Vertical", 70))
sketch2.addConstraint(Sketcher.Constraint("Vertical", 72))
sketch2.addConstraint(Sketcher.Constraint("Vertical", 74))
sketch2.addConstraint(Sketcher.Constraint("Vertical", 76))
sketch2.addConstraint(Sketcher.Constraint("Horizontal", 77))
sketch2.addConstraint(Sketcher.Constraint("Vertical", 78))
sketch2.addConstraint(Sketcher.Constraint("Horizontal", 79))
sketch2.addConstraint(Sketcher.Constraint("Equal", 0, 1))
sketch2.addConstraint(Sketcher.Constraint("Equal", 1, 2))
sketch2.addConstraint(Sketcher.Constraint("Equal", 2, 3))
sketch2.addConstraint(Sketcher.Constraint("Equal", 5, 7))
sketch2.addConstraint(Sketcher.Constraint("Equal", 7, 9))
sketch2.addConstraint(Sketcher.Constraint("Equal", 9, 11))
sketch2.addConstraint(Sketcher.Constraint("Equal", 11, 13))
sketch2.addConstraint(Sketcher.Constraint("Equal", 13, 15))
sketch2.addConstraint(Sketcher.Constraint("Equal", 15, 21))
sketch2.addConstraint(Sketcher.Constraint("Equal", 21, 23))
sketch2.addConstraint(Sketcher.Constraint("Equal", 23, 25))
sketch2.addConstraint(Sketcher.Constraint("Equal", 25, 27))
sketch2.addConstraint(Sketcher.Constraint("Equal", 27, 29))
sketch2.addConstraint(Sketcher.Constraint("Equal", 29, 31))
sketch2.addConstraint(Sketcher.Constraint("Equal", 19, 33))
sketch2.addConstraint(Sketcher.Constraint("Equal", 31, 37))
sketch2.addConstraint(Sketcher.Constraint("Equal", 37, 39))
sketch2.addConstraint(Sketcher.Constraint("Equal", 39, 41))
sketch2.addConstraint(Sketcher.Constraint("Equal", 41, 43))
sketch2.addConstraint(Sketcher.Constraint("Equal", 43, 45))
sketch2.addConstraint(Sketcher.Constraint("Equal", 45, 47))
sketch2.addConstraint(Sketcher.Constraint("Equal", 35, 49))
sketch2.addConstraint(Sketcher.Constraint("Equal", 47, 53))
sketch2.addConstraint(Sketcher.Constraint("Equal", 53, 55))
sketch2.addConstraint(Sketcher.Constraint("Equal", 55, 57))
sketch2.addConstraint(Sketcher.Constraint("Equal", 57, 59))
sketch2.addConstraint(Sketcher.Constraint("Equal", 59, 61))
sketch2.addConstraint(Sketcher.Constraint("Equal", 61, 63))
sketch2.addConstraint(Sketcher.Constraint("Equal", 51, 65))
sketch2.addConstraint(Sketcher.Constraint("Equal", 63, 69))
sketch2.addConstraint(Sketcher.Constraint("Equal", 67, 73))
sketch2.addConstraint(Sketcher.Constraint("Horizontal", 9, 3, 15, 3))
sketch2.addConstraint(Sketcher.Constraint("Horizontal", 25, 3, 31, 3))
sketch2.addConstraint(Sketcher.Constraint("Horizontal", 39, 3, 45, 3))
sketch2.addConstraint(Sketcher.Constraint("Horizontal", 55, 3, 61, 3))
sketch2.addConstraint(Sketcher.Constraint("Vertical", 0, 3, 1, 3))
sketch2.addConstraint(Sketcher.Constraint("Vertical", 1, 3, 2, 3))
sketch2.addConstraint(Sketcher.Constraint("Vertical", 2, 3, 3, 3))
sketch2.addConstraint(Sketcher.Constraint("Vertical", 3, 3, 17, 3))
sketch2.addConstraint(Sketcher.Constraint("Vertical", 11, 3, 21, 3))
sketch2.addConstraint(Sketcher.Constraint("Vertical", 13, 3, 23, 3))
sketch2.addConstraint(Sketcher.Constraint("Vertical", 19, 3, 33, 3))
sketch2.addConstraint(Sketcher.Constraint("Vertical", 31, 3, 37, 3))
sketch2.addConstraint(Sketcher.Constraint("Vertical", 23, 3, 43, 3))
sketch2.addConstraint(Sketcher.Constraint("Vertical", 35, 3, 49, 3))
sketch2.addConstraint(Sketcher.Constraint("Vertical", 39, 3, 53, 3))
sketch2.addConstraint(Sketcher.Constraint("Vertical", 43, 3, 59, 3))
sketch2.addConstraint(Sketcher.Constraint("Vertical", 51, 3, 65, 3))
sketch2.addConstraint(Sketcher.Constraint("Vertical", 67, 3, 69, 3))
sketch2.addConstraint(Sketcher.Constraint("Vertical", 71, 3, 73, 3))
sketch2.addConstraint(Sketcher.Constraint("Equal", 79, 10))
sketch2.addConstraint(Sketcher.Constraint("Equal", 14, 20))
sketch2.addConstraint(Sketcher.Constraint("Equal", 8, 26))
sketch2.addConstraint(Sketcher.Constraint("Equal", 18, 32))
sketch2.addConstraint(Sketcher.Constraint("Equal", 30, 38))
sketch2.addConstraint(Sketcher.Constraint("Equal", 24, 40))
sketch2.addConstraint(Sketcher.Constraint("Equal", 34, 48))
sketch2.addConstraint(Sketcher.Constraint("Equal", 46, 54))
sketch2.addConstraint(Sketcher.Constraint("Equal", 44, 56))
sketch2.addConstraint(Sketcher.Constraint("Equal", 50, 64))
sketch2.addConstraint(Sketcher.Constraint("Equal", 66, 72))
sketch2.addConstraint(Sketcher.Constraint("Diameter", 0, 6.0))
sketch2.addConstraint(Sketcher.Constraint("Radius", 5, 2.0))
sketch2.addConstraint(Sketcher.Constraint("DistanceX", 77, 1, 77, 2, 24.0))
sketch2.addConstraint(Sketcher.Constraint("DistanceY", 4, 2, 4, 1, 28.0))
sketch2.addConstraint(Sketcher.Constraint("DistanceY", 16, 2, 16, 1, 6.0))
sketch2.addConstraint(Sketcher.Constraint("DistanceY", 68, 2, 68, 1, 5.0))
sketch2.addConstraint(Sketcher.Constraint("Radius", 17, 2.25))
sketch2.addConstraint(Sketcher.Constraint("DistanceX", 6, 1, 6, 2, 16.5))
sketch2.addConstraint(Sketcher.Constraint("DistanceY", -1, 1, 0, 3, 261.0))
sketch2.addConstraint(Sketcher.Constraint("DistanceY", -1, 1, 1, 3, 197.0))
sketch2.addConstraint(Sketcher.Constraint("DistanceY", -1, 1, 2, 3, 101.0))
sketch2.addConstraint(Sketcher.Constraint("DistanceY", -1, 1, 3, 3, 37.0))
sketch2.addConstraint(Sketcher.Constraint("DistanceY", -1, 1, 5, 3, 252.0))
sketch2.addConstraint(Sketcher.Constraint("DistanceY", -1, 1, 21, 3, 192.0))
sketch2.addConstraint(Sketcher.Constraint("DistanceY", -1, 1, 37, 3, 93.0))
sketch2.addConstraint(Sketcher.Constraint("DistanceY", -1, 1, 53, 3, 29.0))
sketch2.addConstraint(Sketcher.Constraint("DistanceY", -1, 1, 69, 3, 308.0))
sketch2.addConstraint(Sketcher.Constraint("DistanceY", -1, 1, 78, 2, 350.0))
sketch2.addConstraint(Sketcher.Constraint("DistanceY", -1, 1, 17, 3, 273.5))
sketch2.addConstraint(Sketcher.Constraint("DistanceY", -1, 1, 33, 3, 210.5))
sketch2.addConstraint(Sketcher.Constraint("DistanceY", -1, 1, 49, 3, 120.5))
sketch2.addConstraint(Sketcher.Constraint("DistanceY", -1, 1, 65, 3, 56.5))
sketch2.addConstraint(Sketcher.Constraint("DistanceY", -1, 1, 73, 3, 138.5))
sketch2.addConstraint(Sketcher.Constraint("DistanceY", 76, 2, 76, 1, 12.465584))
sketch2.addConstraint(Sketcher.Constraint("DistanceX", 0, 3, -1, 1, 12.18609))
sketch2.addConstraint(Sketcher.Constraint("DistanceX", 5, 3, -1, 1, 20.43609))
sketch2.addConstraint(Sketcher.Constraint("DistanceX", 76, 2, -1, 1, 24.18609))
pocket1 = doc.addObject("PartDesign::Pocket", "Pocket")
body.addObject(pocket1)
pocket1.Profile = sketch2
pocket1.Length = 350

doc.recompute()
